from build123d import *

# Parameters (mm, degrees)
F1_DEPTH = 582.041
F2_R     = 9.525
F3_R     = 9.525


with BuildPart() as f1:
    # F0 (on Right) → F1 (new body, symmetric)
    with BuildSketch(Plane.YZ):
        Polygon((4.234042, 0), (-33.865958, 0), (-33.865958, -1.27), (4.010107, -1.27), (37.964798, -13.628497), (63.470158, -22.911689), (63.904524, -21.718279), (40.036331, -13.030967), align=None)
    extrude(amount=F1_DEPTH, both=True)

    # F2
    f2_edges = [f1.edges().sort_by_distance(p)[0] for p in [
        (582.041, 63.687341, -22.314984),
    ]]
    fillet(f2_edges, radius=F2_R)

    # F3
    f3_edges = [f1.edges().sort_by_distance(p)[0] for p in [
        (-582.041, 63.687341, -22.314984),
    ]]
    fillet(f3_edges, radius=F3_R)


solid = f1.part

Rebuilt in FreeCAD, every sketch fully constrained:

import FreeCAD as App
import Part
import Sketcher
Q = App.Units.Quantity


def edges_at(feature, points):
    """Names of the edges that pass closest to the given points."""
    edges = feature.Shape.Edges
    near = lambda p: min(range(len(edges)), key=lambda i: edges[i].distToShape(Part.Vertex(*p))[0])
    return sorted({f"Edge{near(p) + 1}" for p in points})


def add_polygon(sketch, points):
    """Adds a closed chain of lines whose ends are joined by coincident constraints."""
    first, n = sketch.GeometryCount, len(points)
    for a, b in zip(points, points[1:] + points[:1]):
        sketch.addGeometry(Part.LineSegment(App.Vector(*a, 0), App.Vector(*b, 0)), False)
    for i in range(n):
        sketch.addConstraint(Sketcher.Constraint("Coincident", first + i, 2, first + (i + 1) % n, 1))

doc = App.newDocument("Part")
body = doc.addObject("PartDesign::Body", "Body")

sketch1 = body.newObject("Sketcher::SketchObject", "Sketch")
sketch1.AttachmentSupport = (doc.getObject("YZ_Plane"), [""])
sketch1.MapMode = "FlatFace"
add_polygon(sketch1, [(4.2, 0), (-33.9, 0), (-33.9, -1.3), (4, -1.3), (38, -13.6), (63.5, -22.9), (63.9, -21.7), (40, -13)])
sketch1.addConstraint([
    Sketcher.Constraint("Horizontal", 0),
    Sketcher.Constraint("Vertical", 1),
    Sketcher.Constraint("Horizontal", 2),
    Sketcher.Constraint("PointOnObject", 0, 2, -1),
    Sketcher.Constraint("Parallel", 3, 4),
    Sketcher.Constraint("Perpendicular", 4, 5),
    Sketcher.Constraint("Perpendicular", 5, 6),
    Sketcher.Constraint("Parallel", 6, 7),
    Sketcher.Constraint("Distance", 6, Q("1 in")),
    Sketcher.Constraint("DistanceX", 0, 2, 0, 1, Q("1.5 in")),
    Sketcher.Constraint("Angle", 3, Q("-20 deg")),
    Sketcher.Constraint("Distance", 7, Q("1.5 in")),
    Sketcher.Constraint("DistanceY", 1, 2, 1, 1, Q("0.05 in")),
    Sketcher.Constraint("Distance", 5, Q("0.05 in")),
    Sketcher.Constraint("DistanceX", -1, 1, 3, 2, 37.964798),
    Sketcher.Constraint("DistanceX", -1, 1, 6, 2, 40.036331),
])
pad1 = body.newObject("PartDesign::Pad", "Pad")
pad1.Profile = sketch1
pad1.Length = Q("45.83 in")
pad1.Midplane = True
doc.recompute()

fillet = body.newObject("PartDesign::Fillet", "Fillet")
fillet.Base = (pad1, edges_at(pad1, [(582.041, 63.687, -22.315)]))
fillet.Radius = Q("0.375 in")
doc.recompute()

fillet2 = body.newObject("PartDesign::Fillet", "Fillet001")
fillet2.Base = (fillet, edges_at(fillet, [(-582.041, 63.687, -22.315)]))
fillet2.Radius = Q("0.375 in")

doc.recompute()
